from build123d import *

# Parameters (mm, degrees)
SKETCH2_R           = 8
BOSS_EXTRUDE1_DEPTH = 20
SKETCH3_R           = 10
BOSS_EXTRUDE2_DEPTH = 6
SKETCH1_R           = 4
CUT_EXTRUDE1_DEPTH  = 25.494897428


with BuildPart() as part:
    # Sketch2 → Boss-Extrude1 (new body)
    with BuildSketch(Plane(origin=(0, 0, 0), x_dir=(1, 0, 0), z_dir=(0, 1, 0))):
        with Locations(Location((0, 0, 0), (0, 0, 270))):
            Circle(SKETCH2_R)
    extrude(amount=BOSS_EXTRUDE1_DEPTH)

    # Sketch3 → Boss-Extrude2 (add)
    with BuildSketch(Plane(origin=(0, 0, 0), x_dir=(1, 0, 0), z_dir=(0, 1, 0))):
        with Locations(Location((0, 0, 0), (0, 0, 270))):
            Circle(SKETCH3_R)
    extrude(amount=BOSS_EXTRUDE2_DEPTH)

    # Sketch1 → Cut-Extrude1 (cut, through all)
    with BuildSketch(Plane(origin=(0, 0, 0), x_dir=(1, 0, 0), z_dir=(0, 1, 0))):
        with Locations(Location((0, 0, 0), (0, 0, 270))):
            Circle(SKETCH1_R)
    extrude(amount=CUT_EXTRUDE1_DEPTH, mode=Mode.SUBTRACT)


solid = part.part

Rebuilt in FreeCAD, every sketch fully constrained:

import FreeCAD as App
import Part
import Sketcher

doc = App.newDocument("Part")
body = doc.addObject("PartDesign::Body", "Body")

# Sketch on XZ plane
sketch1 = body.newObject("Sketcher::SketchObject", "Sketch")
sketch1.AttachmentSupport = (doc.getObject("XZ_Plane"), [""])
sketch1.MapMode = "FlatFace"
sketch1.addGeometry(Part.Circle(App.Vector(0, 0, 0), App.Vector(0, 0, 1), 8), False)
sketch1.addConstraint([
    Sketcher.Constraint("Coincident", 0, 3, -1, 1),
    Sketcher.Constraint("Diameter", 0, 16.0),
])
pad1 = body.newObject("PartDesign::Pad", "Pad")
pad1.Profile = sketch1
pad1.Length = 20
pad1.Reversed = True

# Sketch on XZ plane
sketch2 = body.newObject("Sketcher::SketchObject", "Sketch001")
sketch2.AttachmentSupport = (doc.getObject("XZ_Plane"), [""])
sketch2.MapMode = "FlatFace"
sketch2.addGeometry(Part.Circle(App.Vector(0, 0, 0), App.Vector(0, 0, 1), 10), False)
sketch2.addConstraint([
    Sketcher.Constraint("Coincident", 0, 3, -1, 1),
    Sketcher.Constraint("Diameter", 0, 20.0),
])
pad2 = body.newObject("PartDesign::Pad", "Pad001")
pad2.Profile = sketch2
pad2.Length = 6
pad2.Reversed = True

# Sketch on XZ plane
sketch3 = body.newObject("Sketcher::SketchObject", "Sketch002")
sketch3.AttachmentSupport = (doc.getObject("XZ_Plane"), [""])
sketch3.MapMode = "FlatFace"
sketch3.addGeometry(Part.Circle(App.Vector(0, 0, 0), App.Vector(0, 0, 1), 4), False)
sketch3.addConstraint([
    Sketcher.Constraint("Coincident", 0, 3, -1, 1),
    Sketcher.Constraint("Diameter", 0, 8.0),
])
pocket1 = body.newObject("PartDesign::Pocket", "Pocket")
pocket1.Profile = sketch3
pocket1.Type = "ThroughAll"

doc.recompute()
